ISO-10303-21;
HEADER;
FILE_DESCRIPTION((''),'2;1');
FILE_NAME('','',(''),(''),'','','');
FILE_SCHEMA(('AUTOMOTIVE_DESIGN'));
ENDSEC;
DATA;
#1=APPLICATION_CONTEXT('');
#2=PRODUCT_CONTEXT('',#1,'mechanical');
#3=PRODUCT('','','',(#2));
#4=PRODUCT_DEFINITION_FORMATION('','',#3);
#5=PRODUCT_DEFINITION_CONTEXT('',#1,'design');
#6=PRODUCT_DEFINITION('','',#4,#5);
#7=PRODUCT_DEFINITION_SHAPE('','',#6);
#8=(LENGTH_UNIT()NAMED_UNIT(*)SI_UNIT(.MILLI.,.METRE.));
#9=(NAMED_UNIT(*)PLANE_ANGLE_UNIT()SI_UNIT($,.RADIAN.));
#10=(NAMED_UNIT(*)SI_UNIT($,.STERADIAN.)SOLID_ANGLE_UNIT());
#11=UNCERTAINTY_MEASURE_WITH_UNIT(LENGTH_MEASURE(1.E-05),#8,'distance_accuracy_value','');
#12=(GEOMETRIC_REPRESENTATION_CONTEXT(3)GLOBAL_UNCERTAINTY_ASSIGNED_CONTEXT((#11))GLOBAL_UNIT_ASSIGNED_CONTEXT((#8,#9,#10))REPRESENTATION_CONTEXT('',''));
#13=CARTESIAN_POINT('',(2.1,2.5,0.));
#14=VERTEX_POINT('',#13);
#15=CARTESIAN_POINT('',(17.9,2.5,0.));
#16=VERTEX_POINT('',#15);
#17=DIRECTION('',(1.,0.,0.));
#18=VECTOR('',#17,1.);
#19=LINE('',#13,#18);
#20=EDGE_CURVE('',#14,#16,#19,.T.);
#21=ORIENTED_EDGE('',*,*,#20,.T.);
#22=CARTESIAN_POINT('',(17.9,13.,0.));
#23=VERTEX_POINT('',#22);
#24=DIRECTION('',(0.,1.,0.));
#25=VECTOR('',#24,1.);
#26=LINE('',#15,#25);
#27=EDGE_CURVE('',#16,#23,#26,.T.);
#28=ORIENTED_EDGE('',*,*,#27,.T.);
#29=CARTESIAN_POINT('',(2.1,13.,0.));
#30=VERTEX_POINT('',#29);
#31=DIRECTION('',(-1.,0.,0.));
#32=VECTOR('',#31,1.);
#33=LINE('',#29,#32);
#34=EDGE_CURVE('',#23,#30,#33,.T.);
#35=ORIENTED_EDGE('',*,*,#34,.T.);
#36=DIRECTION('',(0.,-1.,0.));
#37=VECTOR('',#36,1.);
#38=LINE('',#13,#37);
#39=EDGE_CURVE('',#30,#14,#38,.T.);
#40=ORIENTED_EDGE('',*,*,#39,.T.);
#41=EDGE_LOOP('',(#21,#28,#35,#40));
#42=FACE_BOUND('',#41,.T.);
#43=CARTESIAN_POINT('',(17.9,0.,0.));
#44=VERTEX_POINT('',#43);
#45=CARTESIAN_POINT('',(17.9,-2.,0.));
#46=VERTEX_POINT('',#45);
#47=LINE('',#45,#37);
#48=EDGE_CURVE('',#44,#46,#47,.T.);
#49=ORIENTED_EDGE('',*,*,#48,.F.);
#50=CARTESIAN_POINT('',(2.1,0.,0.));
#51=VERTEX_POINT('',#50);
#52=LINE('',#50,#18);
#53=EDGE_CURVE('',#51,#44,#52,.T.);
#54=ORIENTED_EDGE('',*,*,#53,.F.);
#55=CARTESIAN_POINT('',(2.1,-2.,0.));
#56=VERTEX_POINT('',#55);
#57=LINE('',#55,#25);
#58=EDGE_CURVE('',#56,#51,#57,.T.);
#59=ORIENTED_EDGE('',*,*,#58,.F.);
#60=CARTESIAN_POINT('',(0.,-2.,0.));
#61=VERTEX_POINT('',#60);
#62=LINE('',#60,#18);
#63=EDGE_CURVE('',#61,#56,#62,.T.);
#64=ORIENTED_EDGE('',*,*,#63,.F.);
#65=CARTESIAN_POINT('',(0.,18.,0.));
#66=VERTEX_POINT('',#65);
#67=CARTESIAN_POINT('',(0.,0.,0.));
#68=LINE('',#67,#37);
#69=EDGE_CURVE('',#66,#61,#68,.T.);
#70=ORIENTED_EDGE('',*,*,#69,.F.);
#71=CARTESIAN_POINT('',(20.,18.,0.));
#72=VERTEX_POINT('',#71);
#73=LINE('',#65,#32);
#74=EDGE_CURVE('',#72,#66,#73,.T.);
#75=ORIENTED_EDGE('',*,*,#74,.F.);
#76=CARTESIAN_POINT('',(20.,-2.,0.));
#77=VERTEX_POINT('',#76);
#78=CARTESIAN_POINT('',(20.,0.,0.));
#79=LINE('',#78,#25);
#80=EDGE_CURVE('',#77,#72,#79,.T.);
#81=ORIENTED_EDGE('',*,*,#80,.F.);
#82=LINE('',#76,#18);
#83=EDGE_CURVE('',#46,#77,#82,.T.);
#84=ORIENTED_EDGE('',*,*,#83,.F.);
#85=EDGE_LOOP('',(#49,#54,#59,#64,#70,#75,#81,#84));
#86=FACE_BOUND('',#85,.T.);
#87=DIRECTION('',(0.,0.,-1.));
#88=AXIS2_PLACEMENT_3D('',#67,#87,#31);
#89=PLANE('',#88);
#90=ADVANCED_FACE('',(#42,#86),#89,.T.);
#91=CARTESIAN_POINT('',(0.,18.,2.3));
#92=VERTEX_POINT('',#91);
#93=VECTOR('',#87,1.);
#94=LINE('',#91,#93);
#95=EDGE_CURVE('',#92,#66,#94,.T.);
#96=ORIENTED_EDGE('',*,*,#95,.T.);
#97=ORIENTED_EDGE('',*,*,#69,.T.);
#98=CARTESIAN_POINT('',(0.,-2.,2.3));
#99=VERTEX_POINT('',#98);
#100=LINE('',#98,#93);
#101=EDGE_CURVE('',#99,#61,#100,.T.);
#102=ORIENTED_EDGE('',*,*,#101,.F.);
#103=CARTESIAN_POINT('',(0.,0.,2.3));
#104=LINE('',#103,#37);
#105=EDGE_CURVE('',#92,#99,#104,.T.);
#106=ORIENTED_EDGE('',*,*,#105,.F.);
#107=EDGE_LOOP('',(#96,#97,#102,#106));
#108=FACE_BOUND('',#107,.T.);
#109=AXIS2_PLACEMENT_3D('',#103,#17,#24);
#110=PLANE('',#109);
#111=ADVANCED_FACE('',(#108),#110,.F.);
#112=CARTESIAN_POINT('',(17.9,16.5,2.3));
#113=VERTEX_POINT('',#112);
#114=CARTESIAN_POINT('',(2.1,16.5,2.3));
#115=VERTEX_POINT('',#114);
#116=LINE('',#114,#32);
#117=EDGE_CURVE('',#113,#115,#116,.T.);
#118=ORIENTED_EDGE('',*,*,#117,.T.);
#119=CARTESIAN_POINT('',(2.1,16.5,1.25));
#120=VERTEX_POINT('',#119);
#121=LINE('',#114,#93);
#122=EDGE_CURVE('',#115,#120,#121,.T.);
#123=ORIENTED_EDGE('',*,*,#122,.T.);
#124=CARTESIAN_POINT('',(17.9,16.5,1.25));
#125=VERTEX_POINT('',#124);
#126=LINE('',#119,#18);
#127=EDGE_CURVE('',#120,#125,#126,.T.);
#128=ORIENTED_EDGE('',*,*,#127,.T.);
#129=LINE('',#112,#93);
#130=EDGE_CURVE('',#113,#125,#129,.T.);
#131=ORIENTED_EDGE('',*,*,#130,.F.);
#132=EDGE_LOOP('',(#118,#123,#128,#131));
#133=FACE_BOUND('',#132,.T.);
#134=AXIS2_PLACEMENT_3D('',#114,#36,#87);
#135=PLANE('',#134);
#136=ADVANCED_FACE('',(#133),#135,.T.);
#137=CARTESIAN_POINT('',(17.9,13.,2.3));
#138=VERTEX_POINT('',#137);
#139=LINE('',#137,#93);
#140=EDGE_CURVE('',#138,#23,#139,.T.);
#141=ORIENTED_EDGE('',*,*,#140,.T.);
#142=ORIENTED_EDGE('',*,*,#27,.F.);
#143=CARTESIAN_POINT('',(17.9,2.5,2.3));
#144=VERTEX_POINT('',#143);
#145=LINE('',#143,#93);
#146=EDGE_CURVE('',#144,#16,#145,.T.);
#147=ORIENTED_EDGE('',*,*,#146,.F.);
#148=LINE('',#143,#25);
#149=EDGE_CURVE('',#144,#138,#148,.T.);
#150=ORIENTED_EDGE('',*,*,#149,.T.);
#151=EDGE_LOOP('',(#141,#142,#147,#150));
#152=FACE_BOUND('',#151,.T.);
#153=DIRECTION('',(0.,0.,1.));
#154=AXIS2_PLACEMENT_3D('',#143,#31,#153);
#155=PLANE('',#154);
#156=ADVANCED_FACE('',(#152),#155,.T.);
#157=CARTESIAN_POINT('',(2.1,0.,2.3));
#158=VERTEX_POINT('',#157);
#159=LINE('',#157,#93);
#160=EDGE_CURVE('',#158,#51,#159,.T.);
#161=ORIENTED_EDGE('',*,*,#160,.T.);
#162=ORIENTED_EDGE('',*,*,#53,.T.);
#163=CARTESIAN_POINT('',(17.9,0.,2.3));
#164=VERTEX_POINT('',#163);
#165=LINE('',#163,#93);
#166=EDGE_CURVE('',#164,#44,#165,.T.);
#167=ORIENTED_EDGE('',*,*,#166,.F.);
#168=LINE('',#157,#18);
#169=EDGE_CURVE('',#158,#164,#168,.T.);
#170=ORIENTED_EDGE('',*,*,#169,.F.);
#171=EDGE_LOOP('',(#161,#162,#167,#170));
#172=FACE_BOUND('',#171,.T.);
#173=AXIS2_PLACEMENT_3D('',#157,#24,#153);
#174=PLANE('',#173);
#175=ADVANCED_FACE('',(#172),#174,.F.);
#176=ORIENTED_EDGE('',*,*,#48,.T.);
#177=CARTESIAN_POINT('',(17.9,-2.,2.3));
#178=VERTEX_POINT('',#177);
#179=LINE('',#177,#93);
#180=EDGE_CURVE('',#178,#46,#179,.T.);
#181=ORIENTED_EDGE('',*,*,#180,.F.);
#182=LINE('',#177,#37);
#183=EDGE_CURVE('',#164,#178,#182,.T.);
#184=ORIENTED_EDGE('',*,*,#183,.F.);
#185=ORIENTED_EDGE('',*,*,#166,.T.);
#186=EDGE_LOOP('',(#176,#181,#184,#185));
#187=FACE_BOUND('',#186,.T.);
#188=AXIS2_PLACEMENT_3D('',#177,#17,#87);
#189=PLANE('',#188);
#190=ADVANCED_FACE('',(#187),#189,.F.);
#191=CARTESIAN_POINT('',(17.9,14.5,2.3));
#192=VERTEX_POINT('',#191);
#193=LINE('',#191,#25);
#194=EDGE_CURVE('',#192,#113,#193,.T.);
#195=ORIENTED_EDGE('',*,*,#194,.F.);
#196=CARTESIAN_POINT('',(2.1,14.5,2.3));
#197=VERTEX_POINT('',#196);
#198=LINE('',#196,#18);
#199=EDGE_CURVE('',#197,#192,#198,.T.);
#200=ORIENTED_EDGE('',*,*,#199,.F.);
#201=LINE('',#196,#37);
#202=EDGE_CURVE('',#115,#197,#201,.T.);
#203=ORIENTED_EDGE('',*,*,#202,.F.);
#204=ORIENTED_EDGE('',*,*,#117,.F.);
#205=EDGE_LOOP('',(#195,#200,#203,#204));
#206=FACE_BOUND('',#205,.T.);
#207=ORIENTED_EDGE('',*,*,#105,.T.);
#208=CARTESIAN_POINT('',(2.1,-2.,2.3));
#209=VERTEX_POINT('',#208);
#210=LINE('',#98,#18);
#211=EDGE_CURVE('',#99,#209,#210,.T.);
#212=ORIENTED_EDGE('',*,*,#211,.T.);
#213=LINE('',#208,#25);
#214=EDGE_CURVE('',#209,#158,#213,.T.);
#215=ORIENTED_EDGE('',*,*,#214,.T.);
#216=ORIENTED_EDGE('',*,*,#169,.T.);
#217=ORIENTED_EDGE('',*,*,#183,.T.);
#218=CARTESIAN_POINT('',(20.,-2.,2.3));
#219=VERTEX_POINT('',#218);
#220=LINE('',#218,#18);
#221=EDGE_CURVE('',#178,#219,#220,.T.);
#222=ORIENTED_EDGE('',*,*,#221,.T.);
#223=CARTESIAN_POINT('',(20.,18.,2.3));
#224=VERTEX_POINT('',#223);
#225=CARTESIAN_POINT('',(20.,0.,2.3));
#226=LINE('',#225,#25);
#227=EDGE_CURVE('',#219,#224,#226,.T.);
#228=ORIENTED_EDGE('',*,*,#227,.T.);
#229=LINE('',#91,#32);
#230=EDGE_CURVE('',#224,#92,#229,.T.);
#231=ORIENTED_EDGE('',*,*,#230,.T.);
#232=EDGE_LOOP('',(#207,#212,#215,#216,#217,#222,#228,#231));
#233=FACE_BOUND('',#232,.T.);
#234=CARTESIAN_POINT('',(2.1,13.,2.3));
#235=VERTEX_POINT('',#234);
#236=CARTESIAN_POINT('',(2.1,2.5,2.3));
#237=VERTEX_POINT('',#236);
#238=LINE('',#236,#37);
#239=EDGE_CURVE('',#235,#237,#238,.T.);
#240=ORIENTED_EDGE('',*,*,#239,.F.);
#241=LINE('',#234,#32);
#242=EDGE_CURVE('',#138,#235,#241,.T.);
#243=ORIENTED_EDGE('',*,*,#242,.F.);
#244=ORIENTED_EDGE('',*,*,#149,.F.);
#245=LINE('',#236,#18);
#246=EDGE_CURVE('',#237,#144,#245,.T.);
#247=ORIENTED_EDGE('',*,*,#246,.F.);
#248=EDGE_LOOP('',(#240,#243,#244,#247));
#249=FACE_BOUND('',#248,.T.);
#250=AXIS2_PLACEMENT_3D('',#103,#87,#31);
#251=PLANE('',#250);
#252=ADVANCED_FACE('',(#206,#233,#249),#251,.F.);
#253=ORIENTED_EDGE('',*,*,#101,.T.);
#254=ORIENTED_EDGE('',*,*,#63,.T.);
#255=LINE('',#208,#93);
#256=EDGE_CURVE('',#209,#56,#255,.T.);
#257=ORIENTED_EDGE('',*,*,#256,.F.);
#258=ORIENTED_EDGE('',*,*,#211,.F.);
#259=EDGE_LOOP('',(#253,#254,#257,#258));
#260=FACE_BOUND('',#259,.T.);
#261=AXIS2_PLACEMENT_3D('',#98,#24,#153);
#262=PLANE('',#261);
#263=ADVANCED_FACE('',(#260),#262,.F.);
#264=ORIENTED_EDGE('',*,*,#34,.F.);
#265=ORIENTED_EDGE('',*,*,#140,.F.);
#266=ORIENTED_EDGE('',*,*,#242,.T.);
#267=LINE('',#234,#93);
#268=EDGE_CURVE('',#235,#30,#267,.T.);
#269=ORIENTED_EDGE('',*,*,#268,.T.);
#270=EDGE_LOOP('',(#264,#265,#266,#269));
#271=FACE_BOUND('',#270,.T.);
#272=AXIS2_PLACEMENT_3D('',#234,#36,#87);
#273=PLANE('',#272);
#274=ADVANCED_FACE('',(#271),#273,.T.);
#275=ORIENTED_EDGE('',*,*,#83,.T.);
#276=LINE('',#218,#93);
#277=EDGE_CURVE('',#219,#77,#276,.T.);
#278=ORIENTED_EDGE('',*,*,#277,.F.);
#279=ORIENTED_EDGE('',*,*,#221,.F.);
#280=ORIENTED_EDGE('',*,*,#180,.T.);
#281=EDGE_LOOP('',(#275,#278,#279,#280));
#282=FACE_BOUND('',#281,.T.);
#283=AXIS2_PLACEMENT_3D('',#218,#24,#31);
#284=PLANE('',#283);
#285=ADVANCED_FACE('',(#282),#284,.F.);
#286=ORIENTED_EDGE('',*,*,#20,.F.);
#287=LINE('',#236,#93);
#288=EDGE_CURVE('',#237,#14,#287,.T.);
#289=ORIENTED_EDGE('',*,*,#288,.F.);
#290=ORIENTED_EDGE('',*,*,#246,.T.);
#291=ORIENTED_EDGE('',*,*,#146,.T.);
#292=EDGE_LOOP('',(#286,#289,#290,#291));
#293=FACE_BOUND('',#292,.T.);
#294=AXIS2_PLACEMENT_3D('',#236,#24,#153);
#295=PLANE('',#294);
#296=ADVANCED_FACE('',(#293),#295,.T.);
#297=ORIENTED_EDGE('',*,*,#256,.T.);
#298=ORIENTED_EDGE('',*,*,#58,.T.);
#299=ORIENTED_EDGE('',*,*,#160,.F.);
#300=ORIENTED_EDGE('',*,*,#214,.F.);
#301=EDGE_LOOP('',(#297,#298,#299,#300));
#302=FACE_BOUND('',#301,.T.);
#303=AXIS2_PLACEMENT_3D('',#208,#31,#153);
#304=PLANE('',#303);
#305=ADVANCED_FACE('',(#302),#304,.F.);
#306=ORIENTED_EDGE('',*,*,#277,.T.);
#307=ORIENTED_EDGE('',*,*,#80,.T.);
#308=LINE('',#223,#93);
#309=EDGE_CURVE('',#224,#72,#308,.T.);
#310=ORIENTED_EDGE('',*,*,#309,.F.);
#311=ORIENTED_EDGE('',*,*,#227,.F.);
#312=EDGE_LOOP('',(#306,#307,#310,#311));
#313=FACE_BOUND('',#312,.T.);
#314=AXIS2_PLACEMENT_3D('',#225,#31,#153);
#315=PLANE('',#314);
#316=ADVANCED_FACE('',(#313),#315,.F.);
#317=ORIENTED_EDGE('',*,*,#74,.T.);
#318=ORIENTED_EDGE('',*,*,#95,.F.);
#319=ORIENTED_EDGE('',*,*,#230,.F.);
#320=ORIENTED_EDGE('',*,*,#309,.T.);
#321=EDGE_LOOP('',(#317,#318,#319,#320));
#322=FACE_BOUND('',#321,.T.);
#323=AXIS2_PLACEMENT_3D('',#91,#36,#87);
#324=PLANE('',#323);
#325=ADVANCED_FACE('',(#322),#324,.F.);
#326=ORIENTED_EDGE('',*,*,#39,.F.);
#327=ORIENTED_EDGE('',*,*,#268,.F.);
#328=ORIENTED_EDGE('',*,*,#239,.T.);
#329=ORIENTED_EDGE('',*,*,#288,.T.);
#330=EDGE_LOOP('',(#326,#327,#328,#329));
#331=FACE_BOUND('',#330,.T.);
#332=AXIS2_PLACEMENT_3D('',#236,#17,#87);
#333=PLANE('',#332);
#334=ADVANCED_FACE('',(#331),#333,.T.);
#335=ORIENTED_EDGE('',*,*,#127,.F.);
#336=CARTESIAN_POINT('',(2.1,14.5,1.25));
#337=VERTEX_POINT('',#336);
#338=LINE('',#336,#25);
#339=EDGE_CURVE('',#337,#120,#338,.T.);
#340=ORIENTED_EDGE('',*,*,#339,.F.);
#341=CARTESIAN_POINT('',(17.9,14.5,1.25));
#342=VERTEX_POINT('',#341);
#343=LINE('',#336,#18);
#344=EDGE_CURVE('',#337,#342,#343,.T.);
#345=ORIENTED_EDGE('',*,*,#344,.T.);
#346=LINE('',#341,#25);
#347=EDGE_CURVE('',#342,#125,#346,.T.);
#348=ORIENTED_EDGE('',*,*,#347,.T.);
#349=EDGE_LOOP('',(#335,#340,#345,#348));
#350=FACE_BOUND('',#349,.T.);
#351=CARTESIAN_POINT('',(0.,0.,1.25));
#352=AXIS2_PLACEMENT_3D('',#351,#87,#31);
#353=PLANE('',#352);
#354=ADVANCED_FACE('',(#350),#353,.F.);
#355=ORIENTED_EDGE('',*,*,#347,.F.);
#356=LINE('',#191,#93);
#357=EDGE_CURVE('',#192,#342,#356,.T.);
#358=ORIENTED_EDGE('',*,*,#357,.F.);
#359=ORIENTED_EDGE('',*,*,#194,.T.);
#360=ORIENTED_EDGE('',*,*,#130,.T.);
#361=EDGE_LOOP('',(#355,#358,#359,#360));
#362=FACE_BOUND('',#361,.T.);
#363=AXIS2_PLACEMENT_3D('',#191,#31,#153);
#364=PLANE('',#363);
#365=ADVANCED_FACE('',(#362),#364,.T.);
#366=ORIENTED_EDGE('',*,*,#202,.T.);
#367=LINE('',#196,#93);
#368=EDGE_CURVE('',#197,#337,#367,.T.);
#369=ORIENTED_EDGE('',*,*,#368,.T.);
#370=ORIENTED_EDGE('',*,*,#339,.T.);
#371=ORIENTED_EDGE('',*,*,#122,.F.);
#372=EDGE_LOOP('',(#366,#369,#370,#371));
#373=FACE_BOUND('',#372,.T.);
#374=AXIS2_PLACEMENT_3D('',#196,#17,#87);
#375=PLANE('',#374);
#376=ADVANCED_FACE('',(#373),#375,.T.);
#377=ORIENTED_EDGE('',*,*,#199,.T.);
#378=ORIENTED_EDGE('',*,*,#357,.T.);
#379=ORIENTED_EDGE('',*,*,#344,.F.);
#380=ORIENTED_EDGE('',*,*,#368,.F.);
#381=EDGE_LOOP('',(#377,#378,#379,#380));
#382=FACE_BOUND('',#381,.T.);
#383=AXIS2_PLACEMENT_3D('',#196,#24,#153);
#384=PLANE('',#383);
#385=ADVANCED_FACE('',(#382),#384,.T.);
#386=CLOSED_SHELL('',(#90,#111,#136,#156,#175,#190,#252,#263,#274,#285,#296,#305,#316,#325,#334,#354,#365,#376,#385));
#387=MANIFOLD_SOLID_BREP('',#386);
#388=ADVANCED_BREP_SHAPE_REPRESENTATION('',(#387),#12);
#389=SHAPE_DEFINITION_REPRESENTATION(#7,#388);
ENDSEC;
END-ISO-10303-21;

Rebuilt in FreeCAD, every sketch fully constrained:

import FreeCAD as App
import Part
import Sketcher
from FreeCAD import Vector

doc = App.newDocument("Part")
body = doc.addObject("PartDesign::Body", "Body")

# Sketch on XY plane
sketch1 = doc.addObject("Sketcher::SketchObject", "Sketch")
body.addObject(sketch1)
sketch1.AttachmentSupport = (doc.XY_Plane, [""])
sketch1.MapMode = "FlatFace"
sketch1.addGeometry(Part.LineSegment(Vector(0, -2, 0), Vector(2.1, -2, 0)), False)
sketch1.addGeometry(Part.LineSegment(Vector(2.1, -2, 0), Vector(2.1, 0, 0)), False)
sketch1.addGeometry(Part.LineSegment(Vector(2.1, 0, 0), Vector(17.9, 0, 0)), False)
sketch1.addGeometry(Part.LineSegment(Vector(17.9, 0, 0), Vector(17.9, -2, 0)), False)
sketch1.addGeometry(Part.LineSegment(Vector(17.9, -2, 0), Vector(20, -2, 0)), False)
sketch1.addGeometry(Part.LineSegment(Vector(20, -2, 0), Vector(20, 18, 0)), False)
sketch1.addGeometry(Part.LineSegment(Vector(20, 18, 0), Vector(0, 18, 0)), False)
sketch1.addGeometry(Part.LineSegment(Vector(0, 18, 0), Vector(0, -2, 0)), False)
sketch1.addGeometry(Part.LineSegment(Vector(17.9, 2.5, 0), Vector(2.1, 2.5, 0)), False)
sketch1.addGeometry(Part.LineSegment(Vector(2.1, 2.5, 0), Vector(2.1, 13, 0)), False)
sketch1.addGeometry(Part.LineSegment(Vector(2.1, 13, 0), Vector(17.9, 13, 0)), False)
sketch1.addGeometry(Part.LineSegment(Vector(17.9, 13, 0), Vector(17.9, 2.5, 0)), False)
sketch1.addGeometry(Part.LineSegment(Vector(17.9, 14.5, 0), Vector(2.1, 14.5, 0)), False)
sketch1.addGeometry(Part.LineSegment(Vector(2.1, 14.5, 0), Vector(2.1, 16.5, 0)), False)
sketch1.addGeometry(Part.LineSegment(Vector(2.1, 16.5, 0), Vector(17.9, 16.5, 0)), False)
sketch1.addGeometry(Part.LineSegment(Vector(17.9, 16.5, 0), Vector(17.9, 14.5, 0)), False)
sketch1.addConstraint(Sketcher.Constraint("Coincident", 0, 2, 1, 1))
sketch1.addConstraint(Sketcher.Constraint("Coincident", 1, 2, 2, 1))
sketch1.addConstraint(Sketcher.Constraint("Coincident", 2, 2, 3, 1))
sketch1.addConstraint(Sketcher.Constraint("Coincident", 3, 2, 4, 1))
sketch1.addConstraint(Sketcher.Constraint("Coincident", 4, 2, 5, 1))
sketch1.addConstraint(Sketcher.Constraint("Coincident", 5, 2, 6, 1))
sketch1.addConstraint(Sketcher.Constraint("Coincident", 6, 2, 7, 1))
sketch1.addConstraint(Sketcher.Constraint("Coincident", 7, 2, 0, 1))
sketch1.addConstraint(Sketcher.Constraint("Coincident", 8, 2, 9, 1))
sketch1.addConstraint(Sketcher.Constraint("Coincident", 9, 2, 10, 1))
sketch1.addConstraint(Sketcher.Constraint("Coincident", 10, 2, 11, 1))
sketch1.addConstraint(Sketcher.Constraint("Coincident", 11, 2, 8, 1))
sketch1.addConstraint(Sketcher.Constraint("Coincident", 12, 2, 13, 1))
sketch1.addConstraint(Sketcher.Constraint("Coincident", 13, 2, 14, 1))
sketch1.addConstraint(Sketcher.Constraint("Coincident", 14, 2, 15, 1))
sketch1.addConstraint(Sketcher.Constraint("Coincident", 15, 2, 12, 1))
sketch1.addConstraint(Sketcher.Constraint("Horizontal", 0))
sketch1.addConstraint(Sketcher.Constraint("Vertical", 1))
sketch1.addConstraint(Sketcher.Constraint("Horizontal", 2))
sketch1.addConstraint(Sketcher.Constraint("Vertical", 3))
sketch1.addConstraint(Sketcher.Constraint("Horizontal", 4))
sketch1.addConstraint(Sketcher.Constraint("Vertical", 5))
sketch1.addConstraint(Sketcher.Constraint("Horizontal", 6))
sketch1.addConstraint(Sketcher.Constraint("Vertical", 7))
sketch1.addConstraint(Sketcher.Constraint("Horizontal", 8))
sketch1.addConstraint(Sketcher.Constraint("Vertical", 9))
sketch1.addConstraint(Sketcher.Constraint("Horizontal", 10))
sketch1.addConstraint(Sketcher.Constraint("Vertical", 11))
sketch1.addConstraint(Sketcher.Constraint("Horizontal", 12))
sketch1.addConstraint(Sketcher.Constraint("Vertical", 13))
sketch1.addConstraint(Sketcher.Constraint("Horizontal", 14))
sketch1.addConstraint(Sketcher.Constraint("Vertical", 15))
sketch1.addConstraint(Sketcher.Constraint("PointOnObject", 1, 2, -1))
sketch1.addConstraint(Sketcher.Constraint("PointOnObject", 6, 2, -2))
sketch1.addConstraint(Sketcher.Constraint("Horizontal", 0, 2, 3, 2))
sketch1.addConstraint(Sketcher.Constraint("Vertical", 1, 2, 8, 2))
sketch1.addConstraint(Sketcher.Constraint("Vertical", 3, 2, 10, 2))
sketch1.addConstraint(Sketcher.Constraint("Vertical", 9, 2, 12, 2))
sketch1.addConstraint(Sketcher.Constraint("Vertical", 11, 2, 14, 2))
sketch1.addConstraint(Sketcher.Constraint("Equal", 0, 4))
sketch1.addConstraint(Sketcher.Constraint("Equal", 6, 5))
sketch1.addConstraint(Sketcher.Constraint("Equal", 3, 13))
sketch1.addConstraint(Sketcher.Constraint("DistanceX", 6, 2, 6, 1, 20.0))
sketch1.addConstraint(Sketcher.Constraint("DistanceY", 1, 1, 1, 2, 2.0))
sketch1.addConstraint(Sketcher.Constraint("DistanceX", 0, 1, 0, 2, 2.1))
sketch1.addConstraint(Sketcher.Constraint("DistanceY", 9, 1, 9, 2, 10.5))
sketch1.addConstraint(Sketcher.Constraint("DistanceY", -1, 1, 9, 2, 13.0))
sketch1.addConstraint(Sketcher.Constraint("DistanceY", 8, 2, 12, 2, 12.0))
pad1 = doc.addObject("PartDesign::Pad", "Pad")
body.addObject(pad1)
pad1.Profile = sketch1
pad1.Length = 2.3

# Sketch on XY plane
sketch2 = doc.addObject("Sketcher::SketchObject", "Sketch001")
body.addObject(sketch2)
sketch2.AttachmentSupport = (doc.XY_Plane, [""])
sketch2.MapMode = "FlatFace"
sketch2.addGeometry(Part.LineSegment(Vector(2.1, 16.5, 0), Vector(2.1, 14.5, 0)), False)
sketch2.addGeometry(Part.LineSegment(Vector(2.1, 14.5, 0), Vector(17.9, 14.5, 0)), False)
sketch2.addGeometry(Part.LineSegment(Vector(17.9, 14.5, 0), Vector(17.9, 16.5, 0)), False)
sketch2.addGeometry(Part.LineSegment(Vector(17.9, 16.5, 0), Vector(2.1, 16.5, 0)), False)
sketch2.addConstraint(Sketcher.Constraint("Coincident", 0, 2, 1, 1))
sketch2.addConstraint(Sketcher.Constraint("Coincident", 1, 2, 2, 1))
sketch2.addConstraint(Sketcher.Constraint("Coincident", 2, 2, 3, 1))
sketch2.addConstraint(Sketcher.Constraint("Coincident", 3, 2, 0, 1))
sketch2.addConstraint(Sketcher.Constraint("Vertical", 0))
sketch2.addConstraint(Sketcher.Constraint("Horizontal", 1))
sketch2.addConstraint(Sketcher.Constraint("Vertical", 2))
sketch2.addConstraint(Sketcher.Constraint("Horizontal", 3))
sketch2.addConstraint(Sketcher.Constraint("DistanceY", 0, 2, 0, 1, 2.0))
sketch2.addConstraint(Sketcher.Constraint("DistanceX", 1, 1, 1, 2, 15.8))
sketch2.addConstraint(Sketcher.Constraint("DistanceX", -1, 1, 0, 2, 2.1))
sketch2.addConstraint(Sketcher.Constraint("DistanceY", -1, 1, 0, 2, 14.5))
pad2 = doc.addObject("PartDesign::Pad", "Pad001")
body.addObject(pad2)
pad2.Profile = sketch2
pad2.Length = 1.25

doc.recompute()
